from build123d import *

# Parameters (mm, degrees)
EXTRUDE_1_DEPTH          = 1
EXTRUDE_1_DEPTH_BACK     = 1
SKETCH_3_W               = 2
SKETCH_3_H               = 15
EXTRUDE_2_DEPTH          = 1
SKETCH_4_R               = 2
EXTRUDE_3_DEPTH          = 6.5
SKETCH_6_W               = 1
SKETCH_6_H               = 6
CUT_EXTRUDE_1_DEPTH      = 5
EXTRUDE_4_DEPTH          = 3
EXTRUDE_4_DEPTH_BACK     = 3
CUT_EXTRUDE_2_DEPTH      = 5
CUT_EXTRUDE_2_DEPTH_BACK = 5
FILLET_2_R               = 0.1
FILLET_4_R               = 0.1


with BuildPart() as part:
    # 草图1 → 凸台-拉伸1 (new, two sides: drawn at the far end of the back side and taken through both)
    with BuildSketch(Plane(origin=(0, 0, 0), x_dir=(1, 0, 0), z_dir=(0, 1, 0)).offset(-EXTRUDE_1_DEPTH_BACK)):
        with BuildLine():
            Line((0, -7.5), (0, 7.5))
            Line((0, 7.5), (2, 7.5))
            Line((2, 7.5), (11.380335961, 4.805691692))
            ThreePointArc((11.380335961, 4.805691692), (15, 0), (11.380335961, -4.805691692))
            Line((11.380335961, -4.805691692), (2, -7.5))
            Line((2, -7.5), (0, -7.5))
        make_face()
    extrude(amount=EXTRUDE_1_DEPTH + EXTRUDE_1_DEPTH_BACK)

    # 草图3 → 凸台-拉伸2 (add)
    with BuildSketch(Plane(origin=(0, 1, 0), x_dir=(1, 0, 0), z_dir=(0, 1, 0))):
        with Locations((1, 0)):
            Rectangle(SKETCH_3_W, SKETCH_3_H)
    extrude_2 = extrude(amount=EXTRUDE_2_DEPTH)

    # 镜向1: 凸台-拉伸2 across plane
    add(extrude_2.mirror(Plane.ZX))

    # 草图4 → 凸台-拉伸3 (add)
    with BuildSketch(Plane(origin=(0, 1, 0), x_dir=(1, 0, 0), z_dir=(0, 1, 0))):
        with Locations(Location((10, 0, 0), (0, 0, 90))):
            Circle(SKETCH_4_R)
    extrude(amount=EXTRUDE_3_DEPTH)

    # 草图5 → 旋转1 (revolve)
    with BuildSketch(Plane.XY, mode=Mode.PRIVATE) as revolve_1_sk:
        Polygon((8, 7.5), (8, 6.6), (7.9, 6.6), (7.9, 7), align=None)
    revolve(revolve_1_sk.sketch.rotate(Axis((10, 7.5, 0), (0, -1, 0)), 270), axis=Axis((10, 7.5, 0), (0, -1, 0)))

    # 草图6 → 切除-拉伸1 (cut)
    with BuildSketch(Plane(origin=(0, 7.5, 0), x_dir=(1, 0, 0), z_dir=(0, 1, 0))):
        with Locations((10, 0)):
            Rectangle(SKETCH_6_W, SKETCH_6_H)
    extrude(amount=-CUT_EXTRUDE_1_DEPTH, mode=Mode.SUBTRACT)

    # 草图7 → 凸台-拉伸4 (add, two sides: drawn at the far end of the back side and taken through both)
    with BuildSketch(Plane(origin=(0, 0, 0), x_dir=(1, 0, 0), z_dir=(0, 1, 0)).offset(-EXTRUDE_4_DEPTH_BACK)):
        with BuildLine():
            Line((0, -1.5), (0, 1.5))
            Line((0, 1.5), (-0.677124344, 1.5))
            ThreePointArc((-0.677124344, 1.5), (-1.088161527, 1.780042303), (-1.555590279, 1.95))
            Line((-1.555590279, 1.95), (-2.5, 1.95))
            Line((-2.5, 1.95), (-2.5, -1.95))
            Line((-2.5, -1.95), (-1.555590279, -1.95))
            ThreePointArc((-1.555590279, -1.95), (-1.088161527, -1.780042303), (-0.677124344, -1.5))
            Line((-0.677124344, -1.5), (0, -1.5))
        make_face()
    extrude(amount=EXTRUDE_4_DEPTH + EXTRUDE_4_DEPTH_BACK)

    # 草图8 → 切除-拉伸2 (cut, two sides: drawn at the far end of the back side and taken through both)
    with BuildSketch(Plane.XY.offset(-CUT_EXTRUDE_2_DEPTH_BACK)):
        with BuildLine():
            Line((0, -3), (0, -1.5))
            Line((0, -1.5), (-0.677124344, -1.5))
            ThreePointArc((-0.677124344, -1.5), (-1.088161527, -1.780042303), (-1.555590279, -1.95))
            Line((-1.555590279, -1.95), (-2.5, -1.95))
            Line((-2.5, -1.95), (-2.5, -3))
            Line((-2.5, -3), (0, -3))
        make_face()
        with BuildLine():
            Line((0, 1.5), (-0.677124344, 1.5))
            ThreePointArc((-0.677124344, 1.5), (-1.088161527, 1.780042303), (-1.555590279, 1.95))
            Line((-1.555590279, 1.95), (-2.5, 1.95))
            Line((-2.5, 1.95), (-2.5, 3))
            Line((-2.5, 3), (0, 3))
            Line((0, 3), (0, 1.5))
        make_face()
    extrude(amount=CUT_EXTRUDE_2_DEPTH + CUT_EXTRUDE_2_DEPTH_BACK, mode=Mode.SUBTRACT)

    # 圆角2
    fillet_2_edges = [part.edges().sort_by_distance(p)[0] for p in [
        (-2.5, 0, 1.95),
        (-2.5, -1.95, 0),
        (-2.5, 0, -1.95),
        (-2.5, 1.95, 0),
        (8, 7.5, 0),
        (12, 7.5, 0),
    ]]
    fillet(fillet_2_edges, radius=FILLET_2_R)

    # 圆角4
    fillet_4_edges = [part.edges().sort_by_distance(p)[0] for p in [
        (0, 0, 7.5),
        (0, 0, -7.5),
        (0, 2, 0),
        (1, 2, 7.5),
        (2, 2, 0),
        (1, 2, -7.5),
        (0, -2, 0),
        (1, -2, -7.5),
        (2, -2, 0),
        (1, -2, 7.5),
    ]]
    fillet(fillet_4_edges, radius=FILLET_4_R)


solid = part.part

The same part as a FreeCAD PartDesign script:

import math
import FreeCAD as App
import Part
import Sketcher
from FreeCAD import Vector


def edges_at(feature, points):
    """Names of the edges that pass closest to the given points."""
    edges = feature.Shape.Edges
    near = lambda p: min(range(len(edges)), key=lambda i: edges[i].distToShape(Part.Vertex(*p))[0])
    return sorted({f"Edge{near(p) + 1}" for p in points})

doc = App.newDocument("Part")
body = doc.addObject("PartDesign::Body", "Body")

sketch1 = body.newObject("Sketcher::SketchObject", "Sketch")
sketch1.AttachmentSupport = (doc.getObject("XZ_Plane"), [""])
sketch1.MapMode = "FlatFace"
sketch1.addGeometry(Part.LineSegment(Vector(0, -7.5, 0), Vector(0, 7.5, 0)), False)
sketch1.addGeometry(Part.LineSegment(Vector(0, 7.5, 0), Vector(2, 7.5, 0)), False)
sketch1.addGeometry(Part.LineSegment(Vector(2, 7.5, 0), Vector(11.4, 4.8, 0)), False)
sketch1.addGeometry(Part.ArcOfCircle(Part.Circle(Vector(10, 0, 0), Vector(0, 0, 1), 5), math.radians(-74), math.radians(74)), False)
sketch1.addGeometry(Part.LineSegment(Vector(11.4, -4.8, 0), Vector(2, -7.5, 0)), False)
sketch1.addGeometry(Part.LineSegment(Vector(2, -7.5, 0), Vector(0, -7.5, 0)), False)
sketch1.addConstraint(Sketcher.Constraint("Coincident", 0, 2, 1, 1))
sketch1.addConstraint(Sketcher.Constraint("Coincident", 1, 2, 2, 1))
sketch1.addConstraint(Sketcher.Constraint("Tangent", 2, 2, 3, 2))
sketch1.addConstraint(Sketcher.Constraint("Tangent", 3, 1, 4, 1))
sketch1.addConstraint(Sketcher.Constraint("Coincident", 4, 2, 5, 1))
sketch1.addConstraint(Sketcher.Constraint("Coincident", 5, 2, 0, 1))
sketch1.addConstraint(Sketcher.Constraint("Vertical", 0))
sketch1.addConstraint(Sketcher.Constraint("Horizontal", 1))
sketch1.addConstraint(Sketcher.Constraint("Horizontal", 5))
sketch1.addConstraint(Sketcher.Constraint("Symmetric", 0, 2, 5, 2, -1, 1))
sketch1.addConstraint(Sketcher.Constraint("Symmetric", 2, 2, 3, 1, -1))
sketch1.addConstraint(Sketcher.Constraint("Radius", 3, 5.0))
sketch1.addConstraint(Sketcher.Constraint("DistanceX", 1, 1, 1, 2, 2.0))
sketch1.addConstraint(Sketcher.Constraint("DistanceY", 0, 1, 0, 2, 15.0))
sketch1.addConstraint(Sketcher.Constraint("DistanceX", -1, 1, 3, 3, 10.0))
pad1 = body.newObject("PartDesign::Pad", "Pad")
pad1.Profile = sketch1
pad1.Type = "TwoLengths"
pad1.Length = 1
pad1.Length2 = 1
pad1.Reversed = True

sketch2 = body.newObject("Sketcher::SketchObject", "Sketch001")
sketch2.AttachmentSupport = (doc.getObject("XZ_Plane"), [""])
sketch2.MapMode = "FlatFace"
sketch2.AttachmentOffset = App.Placement(Vector(0, 0, -1), App.Rotation())
sketch2.addGeometry(Part.LineSegment(Vector(0, -7.5, 0), Vector(0, 7.5, 0)), False)
sketch2.addGeometry(Part.LineSegment(Vector(0, 7.5, 0), Vector(2, 7.5, 0)), False)
sketch2.addGeometry(Part.LineSegment(Vector(2, 7.5, 0), Vector(2, -7.5, 0)), False)
sketch2.addGeometry(Part.LineSegment(Vector(2, -7.5, 0), Vector(0, -7.5, 0)), False)
sketch2.addConstraint(Sketcher.Constraint("Coincident", 0, 2, 1, 1))
sketch2.addConstraint(Sketcher.Constraint("Coincident", 1, 2, 2, 1))
sketch2.addConstraint(Sketcher.Constraint("Coincident", 2, 2, 3, 1))
sketch2.addConstraint(Sketcher.Constraint("Coincident", 3, 2, 0, 1))
sketch2.addConstraint(Sketcher.Constraint("Vertical", 0))
sketch2.addConstraint(Sketcher.Constraint("Horizontal", 1))
sketch2.addConstraint(Sketcher.Constraint("Vertical", 2))
sketch2.addConstraint(Sketcher.Constraint("Horizontal", 3))
sketch2.addConstraint(Sketcher.Constraint("Symmetric", 0, 2, 3, 2, -1, 1))
sketch2.addConstraint(Sketcher.Constraint("DistanceX", 1, 1, 1, 2, 2.0))
sketch2.addConstraint(Sketcher.Constraint("DistanceY", 0, 1, 0, 2, 15.0))
pad2 = body.newObject("PartDesign::Pad", "Pad001")
pad2.Profile = sketch2
pad2.Length = 1
pad2.Reversed = True
doc.recompute()

mirrored = body.newObject("PartDesign::Mirrored", "Mirrored")
mirrored.Originals = [pad2]
mirrored.MirrorPlane = (doc.getObject("XZ_Plane"), [""])
body.Tip = mirrored

sketch3 = body.newObject("Sketcher::SketchObject", "Sketch002")
sketch3.AttachmentSupport = (doc.getObject("XZ_Plane"), [""])
sketch3.MapMode = "FlatFace"
sketch3.AttachmentOffset = App.Placement(Vector(0, 0, -1), App.Rotation())
sketch3.addGeometry(Part.Circle(Vector(10, 0, 0), Vector(0, 0, 1), 2), False)
sketch3.addConstraint(Sketcher.Constraint("PointOnObject", 0, 3, -1))
sketch3.addConstraint(Sketcher.Constraint("Diameter", 0, 4.0))
sketch3.addConstraint(Sketcher.Constraint("DistanceX", -1, 1, 0, 3, 10.0))
pad3 = body.newObject("PartDesign::Pad", "Pad002")
pad3.Profile = sketch3
pad3.Length = 6.5
pad3.Reversed = True

sketch4 = body.newObject("Sketcher::SketchObject", "Sketch003")
sketch4.AttachmentSupport = (doc.getObject("XY_Plane"), [""])
sketch4.MapMode = "FlatFace"
sketch4.addGeometry(Part.LineSegment(Vector(8, 6.6, 0), Vector(8, 7.5, 0)), False)
sketch4.addGeometry(Part.LineSegment(Vector(8, 7.5, 0), Vector(7.9, 7, 0)), False)
sketch4.addGeometry(Part.LineSegment(Vector(7.9, 7, 0), Vector(7.9, 6.6, 0)), False)
sketch4.addGeometry(Part.LineSegment(Vector(7.9, 6.6, 0), Vector(8, 6.6, 0)), False)
sketch4.addGeometry(Part.LineSegment(Vector(10, 7.5, 0), Vector(10, 6.6, 0)), True)
sketch4.addConstraint(Sketcher.Constraint("Coincident", 0, 2, 1, 1))
sketch4.addConstraint(Sketcher.Constraint("Coincident", 1, 2, 2, 1))
sketch4.addConstraint(Sketcher.Constraint("Coincident", 2, 2, 3, 1))
sketch4.addConstraint(Sketcher.Constraint("Coincident", 3, 2, 0, 1))
sketch4.addConstraint(Sketcher.Constraint("Vertical", 0))
sketch4.addConstraint(Sketcher.Constraint("Vertical", 2))
sketch4.addConstraint(Sketcher.Constraint("Horizontal", 3))
sketch4.addConstraint(Sketcher.Constraint("Vertical", 4))
sketch4.addConstraint(Sketcher.Constraint("Horizontal", 0, 2, 4, 1))
sketch4.addConstraint(Sketcher.Constraint("Horizontal", 3, 2, 4, 2))
sketch4.addConstraint(Sketcher.Constraint("DistanceX", 3, 1, 3, 2, 0.1))
sketch4.addConstraint(Sketcher.Constraint("DistanceY", 0, 1, 0, 2, 0.9))
sketch4.addConstraint(Sketcher.Constraint("DistanceY", 2, 2, 2, 1, 0.4))
sketch4.addConstraint(Sketcher.Constraint("DistanceX", -1, 1, 0, 2, 8.0))
sketch4.addConstraint(Sketcher.Constraint("DistanceY", -1, 1, 1, 2, 7.0))
sketch4.addConstraint(Sketcher.Constraint("DistanceX", -1, 1, 4, 1, 10.0))
revolution = body.newObject("PartDesign::Revolution", "Revolution")
revolution.Profile = sketch4
revolution.ReferenceAxis = (sketch4, ["Axis0"])
revolution.Angle = 360

sketch5 = body.newObject("Sketcher::SketchObject", "Sketch004")
sketch5.AttachmentSupport = (doc.getObject("XZ_Plane"), [""])
sketch5.MapMode = "FlatFace"
sketch5.AttachmentOffset = App.Placement(Vector(0, 0, -7.5), App.Rotation())
sketch5.addGeometry(Part.LineSegment(Vector(9.5, -3, 0), Vector(9.5, 3, 0)), False)
sketch5.addGeometry(Part.LineSegment(Vector(9.5, 3, 0), Vector(10.5, 3, 0)), False)
sketch5.addGeometry(Part.LineSegment(Vector(10.5, 3, 0), Vector(10.5, -3, 0)), False)
sketch5.addGeometry(Part.LineSegment(Vector(10.5, -3, 0), Vector(9.5, -3, 0)), False)
sketch5.addConstraint(Sketcher.Constraint("Coincident", 0, 2, 1, 1))
sketch5.addConstraint(Sketcher.Constraint("Coincident", 1, 2, 2, 1))
sketch5.addConstraint(Sketcher.Constraint("Coincident", 2, 2, 3, 1))
sketch5.addConstraint(Sketcher.Constraint("Coincident", 3, 2, 0, 1))
sketch5.addConstraint(Sketcher.Constraint("Vertical", 0))
sketch5.addConstraint(Sketcher.Constraint("Horizontal", 1))
sketch5.addConstraint(Sketcher.Constraint("Vertical", 2))
sketch5.addConstraint(Sketcher.Constraint("Horizontal", 3))
sketch5.addConstraint(Sketcher.Constraint("DistanceX", 1, 1, 1, 2, 1.0))
sketch5.addConstraint(Sketcher.Constraint("DistanceY", 0, 1, 0, 2, 6.0))
sketch5.addConstraint(Sketcher.Constraint("DistanceY", -1, 1, 0, 2, 3.0))
sketch5.addConstraint(Sketcher.Constraint("DistanceX", -1, 1, 0, 2, 9.5))
pocket1 = body.newObject("PartDesign::Pocket", "Pocket")
pocket1.Profile = sketch5
pocket1.Length = 5
pocket1.Reversed = True

sketch6 = body.newObject("Sketcher::SketchObject", "Sketch005")
sketch6.AttachmentSupport = (doc.getObject("XZ_Plane"), [""])
sketch6.MapMode = "FlatFace"
sketch6.addGeometry(Part.LineSegment(Vector(0, 1.5, 0), Vector(0, -1.5, 0)), False)
sketch6.addGeometry(Part.LineSegment(Vector(0, -1.5, 0), Vector(-0.7, -1.5, 0)), False)
sketch6.addGeometry(Part.ArcOfCircle(Part.Circle(Vector(-2, 0, 0), Vector(0, 0, 1), 2), math.radians(-77), math.radians(-49)), False)
sketch6.addGeometry(Part.LineSegment(Vector(-1.6, -1.9, 0), Vector(-2.5, -1.9, 0)), False)
sketch6.addGeometry(Part.LineSegment(Vector(-2.5, -1.9, 0), Vector(-2.5, 1.9, 0)), False)
sketch6.addGeometry(Part.LineSegment(Vector(-2.5, 1.9, 0), Vector(-1.6, 1.9, 0)), False)
sketch6.addGeometry(Part.ArcOfCircle(Part.Circle(Vector(-2, 0, 0), Vector(0, 0, 1), 2), math.radians(49), math.radians(77)), False)
sketch6.addGeometry(Part.LineSegment(Vector(-0.7, 1.5, 0), Vector(0, 1.5, 0)), False)
sketch6.addConstraint(Sketcher.Constraint("Coincident", 0, 2, 1, 1))
sketch6.addConstraint(Sketcher.Constraint("Coincident", 1, 2, 2, 2))
sketch6.addConstraint(Sketcher.Constraint("Coincident", 2, 1, 3, 1))
sketch6.addConstraint(Sketcher.Constraint("Coincident", 3, 2, 4, 1))
sketch6.addConstraint(Sketcher.Constraint("Coincident", 4, 2, 5, 1))
sketch6.addConstraint(Sketcher.Constraint("Coincident", 5, 2, 6, 2))
sketch6.addConstraint(Sketcher.Constraint("Coincident", 6, 1, 7, 1))
sketch6.addConstraint(Sketcher.Constraint("Coincident", 7, 2, 0, 1))
sketch6.addConstraint(Sketcher.Constraint("Vertical", 0))
sketch6.addConstraint(Sketcher.Constraint("Horizontal", 1))
sketch6.addConstraint(Sketcher.Constraint("Horizontal", 3))
sketch6.addConstraint(Sketcher.Constraint("Vertical", 4))
sketch6.addConstraint(Sketcher.Constraint("Horizontal", 5))
sketch6.addConstraint(Sketcher.Constraint("Horizontal", 7))
sketch6.addConstraint(Sketcher.Constraint("Coincident", 6, 3, 2, 3))
sketch6.addConstraint(Sketcher.Constraint("Equal", 2, 6))
sketch6.addConstraint(Sketcher.Constraint("Symmetric", 0, 2, 7, 2, -1, 1))
sketch6.addConstraint(Sketcher.Constraint("Symmetric", 2, 1, 5, 2, -1))
sketch6.addConstraint(Sketcher.Constraint("Radius", 2, 2.0))
sketch6.addConstraint(Sketcher.Constraint("DistanceY", 0, 2, 0, 1, 3.0))
sketch6.addConstraint(Sketcher.Constraint("DistanceY", 4, 1, 4, 2, 3.9))
sketch6.addConstraint(Sketcher.Constraint("DistanceX", 2, 3, -1, 1, 2.0))
sketch6.addConstraint(Sketcher.Constraint("DistanceX", 3, 2, -1, 1, 2.5))
pad4 = body.newObject("PartDesign::Pad", "Pad003")
pad4.Profile = sketch6
pad4.Type = "TwoLengths"
pad4.Length = 3
pad4.Length2 = 3
pad4.Reversed = True

sketch7 = body.newObject("Sketcher::SketchObject", "Sketch006")
sketch7.AttachmentSupport = (doc.getObject("XY_Plane"), [""])
sketch7.MapMode = "FlatFace"
sketch7.addGeometry(Part.LineSegment(Vector(0, -3, 0), Vector(0, -1.5, 0)), False)
sketch7.addGeometry(Part.LineSegment(Vector(0, -1.5, 0), Vector(-0.7, -1.5, 0)), False)
sketch7.addGeometry(Part.ArcOfCircle(Part.Circle(Vector(-2, 0, 0), Vector(0, 0, 1), 2), math.radians(-77), math.radians(-49)), False)
sketch7.addGeometry(Part.LineSegment(Vector(-1.6, -1.9, 0), Vector(-2.5, -1.9, 0)), False)
sketch7.addGeometry(Part.LineSegment(Vector(-2.5, -1.9, 0), Vector(-2.5, -3, 0)), False)
sketch7.addGeometry(Part.LineSegment(Vector(-2.5, -3, 0), Vector(0, -3, 0)), False)
sketch7.addGeometry(Part.LineSegment(Vector(-0.7, 1.5, 0), Vector(0, 1.5, 0)), False)
sketch7.addGeometry(Part.LineSegment(Vector(0, 1.5, 0), Vector(0, 3, 0)), False)
sketch7.addGeometry(Part.LineSegment(Vector(0, 3, 0), Vector(-2.5, 3, 0)), False)
sketch7.addGeometry(Part.LineSegment(Vector(-2.5, 3, 0), Vector(-2.5, 1.9, 0)), False)
sketch7.addGeometry(Part.LineSegment(Vector(-2.5, 1.9, 0), Vector(-1.6, 1.9, 0)), False)
sketch7.addGeometry(Part.ArcOfCircle(Part.Circle(Vector(-2, 0, 0), Vector(0, 0, 1), 2), math.radians(49), math.radians(77)), False)
sketch7.addConstraint(Sketcher.Constraint("Coincident", 0, 2, 1, 1))
sketch7.addConstraint(Sketcher.Constraint("Coincident", 1, 2, 2, 2))
sketch7.addConstraint(Sketcher.Constraint("Coincident", 2, 1, 3, 1))
sketch7.addConstraint(Sketcher.Constraint("Coincident", 3, 2, 4, 1))
sketch7.addConstraint(Sketcher.Constraint("Coincident", 4, 2, 5, 1))
sketch7.addConstraint(Sketcher.Constraint("Coincident", 5, 2, 0, 1))
sketch7.addConstraint(Sketcher.Constraint("Coincident", 6, 2, 7, 1))
sketch7.addConstraint(Sketcher.Constraint("Coincident", 7, 2, 8, 1))
sketch7.addConstraint(Sketcher.Constraint("Coincident", 8, 2, 9, 1))
sketch7.addConstraint(Sketcher.Constraint("Coincident", 9, 2, 10, 1))
sketch7.addConstraint(Sketcher.Constraint("Coincident", 10, 2, 11, 2))
sketch7.addConstraint(Sketcher.Constraint("Coincident", 11, 1, 6, 1))
sketch7.addConstraint(Sketcher.Constraint("Vertical", 0))
sketch7.addConstraint(Sketcher.Constraint("Horizontal", 1))
sketch7.addConstraint(Sketcher.Constraint("Horizontal", 3))
sketch7.addConstraint(Sketcher.Constraint("Vertical", 4))
sketch7.addConstraint(Sketcher.Constraint("Horizontal", 5))
sketch7.addConstraint(Sketcher.Constraint("Horizontal", 6))
sketch7.addConstraint(Sketcher.Constraint("Vertical", 7))
sketch7.addConstraint(Sketcher.Constraint("Horizontal", 8))
sketch7.addConstraint(Sketcher.Constraint("Vertical", 9))
sketch7.addConstraint(Sketcher.Constraint("Horizontal", 10))
sketch7.addConstraint(Sketcher.Constraint("Coincident", 11, 3, 2, 3))
sketch7.addConstraint(Sketcher.Constraint("Equal", 2, 11))
sketch7.addConstraint(Sketcher.Constraint("Symmetric", 0, 2, 6, 2, -1, 1))
sketch7.addConstraint(Sketcher.Constraint("Symmetric", 5, 2, 7, 2, -1))
sketch7.addConstraint(Sketcher.Constraint("Symmetric", 3, 2, 9, 2, -1))
sketch7.addConstraint(Sketcher.Constraint("PointOnObject", 2, 3, -1))
sketch7.addConstraint(Sketcher.Constraint("Radius", 2, 2.0))
sketch7.addConstraint(Sketcher.Constraint("DistanceX", 5, 1, 5, 2, 2.5))
sketch7.addConstraint(Sketcher.Constraint("DistanceY", 0, 1, 0, 2, 1.5))
sketch7.addConstraint(Sketcher.Constraint("DistanceX", 2, 3, -1, 1, 2.0))
sketch7.addConstraint(Sketcher.Constraint("DistanceY", 4, 2, -1, 1, 3.0))
sketch7.addConstraint(Sketcher.Constraint("DistanceY", 4, 2, 4, 1, 1.05))
pocket2 = body.newObject("PartDesign::Pocket", "Pocket001")
pocket2.Profile = sketch7
pocket2.Type = "ThroughAll"
pocket2.Midplane = True
doc.recompute()

fillet = body.newObject("PartDesign::Fillet", "Fillet")
fillet.Base = (pocket2, edges_at(pocket2, [
    (-2.5, 0, 1.95),
    (-2.5, -1.95, 0),
    (-2.5, 0, -1.95),
    (-2.5, 1.95, 0),
    (8, 7.5, 0),
    (12, 7.5, 0),
]))
fillet.Radius = 0.1
doc.recompute()

fillet2 = body.newObject("PartDesign::Fillet", "Fillet001")
fillet2.Base = (fillet, edges_at(fillet, [
    (0, 0, 7.5),
    (0, 0, -7.5),
    (0, 2, 0),
    (1, 2, 7.5),
    (2, 2, 0),
    (1, 2, -7.5),
    (0, -2, 0),
    (1, -2, -7.5),
    (2, -2, 0),
    (1, -2, 7.5),
]))
fillet2.Radius = 0.1

doc.recompute()
